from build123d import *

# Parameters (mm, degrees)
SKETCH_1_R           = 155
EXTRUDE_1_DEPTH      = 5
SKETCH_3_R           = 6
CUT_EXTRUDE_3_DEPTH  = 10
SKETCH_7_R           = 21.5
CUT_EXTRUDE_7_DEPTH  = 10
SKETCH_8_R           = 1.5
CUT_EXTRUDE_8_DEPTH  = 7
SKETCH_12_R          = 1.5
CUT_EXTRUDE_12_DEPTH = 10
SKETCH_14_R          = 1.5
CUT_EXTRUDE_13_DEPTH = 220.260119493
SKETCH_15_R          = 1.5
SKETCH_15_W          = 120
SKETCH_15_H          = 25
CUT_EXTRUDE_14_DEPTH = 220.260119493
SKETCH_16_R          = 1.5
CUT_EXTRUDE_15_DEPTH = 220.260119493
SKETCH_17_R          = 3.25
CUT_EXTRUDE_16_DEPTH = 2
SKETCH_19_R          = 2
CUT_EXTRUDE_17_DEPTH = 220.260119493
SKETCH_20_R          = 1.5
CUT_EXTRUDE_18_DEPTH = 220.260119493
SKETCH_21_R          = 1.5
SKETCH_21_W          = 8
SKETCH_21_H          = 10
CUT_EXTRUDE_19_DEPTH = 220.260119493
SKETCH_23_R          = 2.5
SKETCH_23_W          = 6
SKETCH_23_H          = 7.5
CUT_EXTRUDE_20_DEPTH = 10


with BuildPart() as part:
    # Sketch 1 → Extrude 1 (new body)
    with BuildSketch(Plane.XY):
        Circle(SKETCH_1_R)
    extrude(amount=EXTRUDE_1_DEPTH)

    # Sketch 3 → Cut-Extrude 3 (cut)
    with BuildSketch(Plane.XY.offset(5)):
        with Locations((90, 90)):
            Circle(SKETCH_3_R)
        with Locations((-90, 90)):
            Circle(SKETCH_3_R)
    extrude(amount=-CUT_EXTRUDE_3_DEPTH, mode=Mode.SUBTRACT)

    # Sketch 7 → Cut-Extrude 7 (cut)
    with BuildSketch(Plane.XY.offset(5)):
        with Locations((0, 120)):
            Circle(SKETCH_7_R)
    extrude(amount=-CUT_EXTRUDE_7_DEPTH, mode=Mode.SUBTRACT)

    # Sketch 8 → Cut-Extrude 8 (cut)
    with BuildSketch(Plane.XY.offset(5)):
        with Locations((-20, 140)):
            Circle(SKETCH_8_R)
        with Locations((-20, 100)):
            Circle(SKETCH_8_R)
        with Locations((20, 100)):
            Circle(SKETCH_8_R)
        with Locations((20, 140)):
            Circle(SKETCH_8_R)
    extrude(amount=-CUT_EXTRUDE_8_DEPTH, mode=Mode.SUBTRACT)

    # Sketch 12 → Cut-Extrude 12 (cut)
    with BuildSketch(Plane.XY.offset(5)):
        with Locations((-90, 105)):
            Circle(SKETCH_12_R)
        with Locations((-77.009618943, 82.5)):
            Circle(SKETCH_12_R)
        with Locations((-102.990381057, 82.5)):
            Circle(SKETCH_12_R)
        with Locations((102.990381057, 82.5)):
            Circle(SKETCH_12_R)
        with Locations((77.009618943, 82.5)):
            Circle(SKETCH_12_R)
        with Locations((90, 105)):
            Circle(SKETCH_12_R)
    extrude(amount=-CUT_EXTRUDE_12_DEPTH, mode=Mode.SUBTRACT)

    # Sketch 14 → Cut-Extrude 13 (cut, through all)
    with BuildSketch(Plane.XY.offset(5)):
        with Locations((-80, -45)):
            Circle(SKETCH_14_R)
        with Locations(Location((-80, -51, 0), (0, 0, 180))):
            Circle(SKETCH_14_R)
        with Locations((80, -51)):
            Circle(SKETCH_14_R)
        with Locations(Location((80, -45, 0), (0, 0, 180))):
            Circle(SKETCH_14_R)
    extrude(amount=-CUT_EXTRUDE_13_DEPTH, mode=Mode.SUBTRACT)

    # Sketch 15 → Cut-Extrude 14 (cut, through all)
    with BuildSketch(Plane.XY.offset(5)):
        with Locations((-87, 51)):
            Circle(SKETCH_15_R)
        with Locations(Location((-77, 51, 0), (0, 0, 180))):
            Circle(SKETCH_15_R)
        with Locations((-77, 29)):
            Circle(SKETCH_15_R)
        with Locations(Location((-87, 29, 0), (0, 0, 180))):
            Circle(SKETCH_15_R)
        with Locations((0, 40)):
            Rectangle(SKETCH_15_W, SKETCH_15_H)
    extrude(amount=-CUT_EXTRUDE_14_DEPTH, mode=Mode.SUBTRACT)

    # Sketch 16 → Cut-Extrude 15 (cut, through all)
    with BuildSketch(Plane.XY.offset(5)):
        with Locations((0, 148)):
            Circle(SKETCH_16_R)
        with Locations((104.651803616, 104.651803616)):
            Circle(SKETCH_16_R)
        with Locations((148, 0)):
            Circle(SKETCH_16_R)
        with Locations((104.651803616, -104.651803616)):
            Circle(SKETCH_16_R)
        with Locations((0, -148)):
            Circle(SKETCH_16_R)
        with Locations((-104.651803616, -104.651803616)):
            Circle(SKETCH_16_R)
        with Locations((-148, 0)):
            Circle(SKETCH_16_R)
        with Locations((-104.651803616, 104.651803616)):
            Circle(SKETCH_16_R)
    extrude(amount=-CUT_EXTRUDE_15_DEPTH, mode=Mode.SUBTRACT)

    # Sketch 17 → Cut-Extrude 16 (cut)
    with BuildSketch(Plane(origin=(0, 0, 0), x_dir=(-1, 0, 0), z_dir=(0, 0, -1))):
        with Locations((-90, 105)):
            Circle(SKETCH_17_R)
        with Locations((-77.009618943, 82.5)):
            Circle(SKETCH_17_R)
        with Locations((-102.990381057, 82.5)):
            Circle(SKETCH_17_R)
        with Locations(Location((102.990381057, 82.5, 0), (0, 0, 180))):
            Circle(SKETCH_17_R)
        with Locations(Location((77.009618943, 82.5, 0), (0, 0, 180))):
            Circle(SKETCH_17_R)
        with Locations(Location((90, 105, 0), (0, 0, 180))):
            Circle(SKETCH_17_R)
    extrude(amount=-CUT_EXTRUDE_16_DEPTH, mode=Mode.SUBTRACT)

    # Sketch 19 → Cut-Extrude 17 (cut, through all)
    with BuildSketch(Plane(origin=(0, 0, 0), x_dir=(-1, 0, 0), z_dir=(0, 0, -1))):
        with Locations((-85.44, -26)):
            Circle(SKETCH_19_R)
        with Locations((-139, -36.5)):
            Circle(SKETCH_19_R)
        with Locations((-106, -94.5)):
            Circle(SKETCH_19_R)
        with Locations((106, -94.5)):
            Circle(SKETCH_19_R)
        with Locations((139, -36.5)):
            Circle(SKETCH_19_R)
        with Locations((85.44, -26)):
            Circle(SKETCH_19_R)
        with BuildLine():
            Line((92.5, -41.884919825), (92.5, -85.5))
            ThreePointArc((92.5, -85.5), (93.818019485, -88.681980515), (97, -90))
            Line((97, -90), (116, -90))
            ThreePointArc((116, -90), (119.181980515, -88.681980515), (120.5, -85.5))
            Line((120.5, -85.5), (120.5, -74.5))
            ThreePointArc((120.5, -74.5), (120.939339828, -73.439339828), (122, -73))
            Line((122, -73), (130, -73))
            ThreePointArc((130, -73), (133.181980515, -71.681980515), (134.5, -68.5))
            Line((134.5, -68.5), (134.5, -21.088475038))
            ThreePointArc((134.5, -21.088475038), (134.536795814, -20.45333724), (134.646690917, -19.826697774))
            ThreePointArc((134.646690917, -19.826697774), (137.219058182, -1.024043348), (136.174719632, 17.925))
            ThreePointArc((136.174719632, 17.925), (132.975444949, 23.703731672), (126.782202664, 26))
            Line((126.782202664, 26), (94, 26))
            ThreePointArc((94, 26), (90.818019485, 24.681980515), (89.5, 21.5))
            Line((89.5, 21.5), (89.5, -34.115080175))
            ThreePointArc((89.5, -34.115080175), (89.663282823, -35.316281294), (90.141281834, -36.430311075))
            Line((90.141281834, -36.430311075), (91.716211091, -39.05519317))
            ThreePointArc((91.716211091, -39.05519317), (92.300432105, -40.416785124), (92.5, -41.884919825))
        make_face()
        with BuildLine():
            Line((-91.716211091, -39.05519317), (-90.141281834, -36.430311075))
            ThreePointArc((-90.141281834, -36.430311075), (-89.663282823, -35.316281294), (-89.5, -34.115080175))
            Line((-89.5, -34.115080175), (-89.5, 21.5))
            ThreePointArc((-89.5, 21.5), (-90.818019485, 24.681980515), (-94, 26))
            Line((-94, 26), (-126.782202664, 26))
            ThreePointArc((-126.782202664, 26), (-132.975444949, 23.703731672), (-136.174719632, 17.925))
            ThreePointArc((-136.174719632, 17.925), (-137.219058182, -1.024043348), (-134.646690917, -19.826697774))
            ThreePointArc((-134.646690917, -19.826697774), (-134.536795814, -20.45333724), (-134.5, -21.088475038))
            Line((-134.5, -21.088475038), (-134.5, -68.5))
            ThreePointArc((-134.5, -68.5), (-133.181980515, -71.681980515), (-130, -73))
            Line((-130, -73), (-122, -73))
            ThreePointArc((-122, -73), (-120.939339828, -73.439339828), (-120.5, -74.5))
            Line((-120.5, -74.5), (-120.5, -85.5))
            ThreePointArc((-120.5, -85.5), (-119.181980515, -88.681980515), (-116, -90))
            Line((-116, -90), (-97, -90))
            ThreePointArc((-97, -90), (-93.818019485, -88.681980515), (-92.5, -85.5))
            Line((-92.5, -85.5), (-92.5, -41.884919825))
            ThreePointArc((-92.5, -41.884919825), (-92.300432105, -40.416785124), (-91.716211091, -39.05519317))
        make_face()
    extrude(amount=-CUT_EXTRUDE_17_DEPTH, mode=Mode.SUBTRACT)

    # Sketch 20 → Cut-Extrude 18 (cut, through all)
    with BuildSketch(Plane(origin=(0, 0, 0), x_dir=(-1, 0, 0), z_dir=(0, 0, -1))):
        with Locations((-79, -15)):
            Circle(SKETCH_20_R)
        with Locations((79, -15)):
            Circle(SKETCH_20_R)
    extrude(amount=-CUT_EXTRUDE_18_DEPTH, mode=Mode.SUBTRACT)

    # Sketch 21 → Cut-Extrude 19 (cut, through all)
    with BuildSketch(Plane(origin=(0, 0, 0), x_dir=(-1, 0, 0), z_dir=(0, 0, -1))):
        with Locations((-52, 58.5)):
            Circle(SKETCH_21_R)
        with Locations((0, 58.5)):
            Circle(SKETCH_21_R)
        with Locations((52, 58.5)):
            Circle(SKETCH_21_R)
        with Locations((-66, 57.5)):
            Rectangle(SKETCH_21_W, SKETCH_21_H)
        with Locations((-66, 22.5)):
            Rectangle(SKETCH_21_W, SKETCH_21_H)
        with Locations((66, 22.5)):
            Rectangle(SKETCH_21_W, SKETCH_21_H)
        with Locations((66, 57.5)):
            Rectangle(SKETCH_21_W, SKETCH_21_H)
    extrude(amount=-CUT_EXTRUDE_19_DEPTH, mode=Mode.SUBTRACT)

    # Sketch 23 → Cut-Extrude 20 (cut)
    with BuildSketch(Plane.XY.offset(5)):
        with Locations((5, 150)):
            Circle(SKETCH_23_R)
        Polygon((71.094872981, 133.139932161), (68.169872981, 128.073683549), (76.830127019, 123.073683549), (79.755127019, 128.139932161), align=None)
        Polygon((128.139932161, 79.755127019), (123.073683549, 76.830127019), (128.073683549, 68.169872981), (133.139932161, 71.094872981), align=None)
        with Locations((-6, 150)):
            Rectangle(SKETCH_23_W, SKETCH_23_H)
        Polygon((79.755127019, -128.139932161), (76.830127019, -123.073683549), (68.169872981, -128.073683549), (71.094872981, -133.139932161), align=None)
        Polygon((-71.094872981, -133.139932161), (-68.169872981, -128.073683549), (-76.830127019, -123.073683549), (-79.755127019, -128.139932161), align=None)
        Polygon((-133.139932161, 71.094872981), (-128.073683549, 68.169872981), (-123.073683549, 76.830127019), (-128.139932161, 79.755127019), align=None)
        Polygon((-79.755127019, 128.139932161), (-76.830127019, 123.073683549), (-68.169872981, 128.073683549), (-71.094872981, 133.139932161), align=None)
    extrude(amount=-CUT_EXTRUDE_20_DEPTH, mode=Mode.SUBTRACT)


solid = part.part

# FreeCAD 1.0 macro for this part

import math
import FreeCAD as App
import Part
import Sketcher

V = App.Vector
Q = App.Units.Quantity

doc = App.newDocument("Part")
body = doc.addObject("PartDesign::Body", "Body")

# Sketch on XY plane
sketch1 = doc.addObject("Sketcher::SketchObject", "Sketch")
body.addObject(sketch1)
sketch1.AttachmentSupport = (doc.XY_Plane, [""])
sketch1.MapMode = "FlatFace"
sketch1.addGeometry(Part.Circle(V(0, 0, 0), V(0, 0, 1), 155), False)
sketch1.addConstraint([
    Sketcher.Constraint("Coincident", 0, 3, -1, 1),
    Sketcher.Constraint("Diameter", 0, 310.0),
])
pad1 = doc.addObject("PartDesign::Pad", "Pad")
body.addObject(pad1)
pad1.Profile = sketch1
pad1.Length = 5

# Sketch on XY plane
sketch2 = doc.addObject("Sketcher::SketchObject", "Sketch001")
body.addObject(sketch2)
sketch2.AttachmentSupport = (doc.XY_Plane, [""])
sketch2.MapMode = "FlatFace"
sketch2.AttachmentOffset = App.Placement(V(0, 0, 5), App.Rotation())
sketch2.addGeometry([
    Part.Circle(V(90, 90, 0), V(0, 0, 1), 6),
    Part.Circle(V(-90, 90, 0), V(0, 0, 1), 6),
], False)
sketch2.addConstraint([
    Sketcher.Constraint("Equal", 0, 1),
    Sketcher.Constraint("Symmetric", 0, 3, 1, 3, -2),
    Sketcher.Constraint("Diameter", 0, 12.0),
    Sketcher.Constraint("DistanceX", -1, 1, 0, 3, 90.0),
    Sketcher.Constraint("DistanceY", -1, 1, 0, 3, 90.0),
])
pocket1 = doc.addObject("PartDesign::Pocket", "Pocket")
body.addObject(pocket1)
pocket1.Profile = sketch2
pocket1.Length = 10

# Sketch on XY plane
sketch3 = doc.addObject("Sketcher::SketchObject", "Sketch002")
body.addObject(sketch3)
sketch3.AttachmentSupport = (doc.XY_Plane, [""])
sketch3.MapMode = "FlatFace"
sketch3.AttachmentOffset = App.Placement(V(0, 0, 5), App.Rotation())
sketch3.addGeometry(Part.Circle(V(0, 120, 0), V(0, 0, 1), 22), False)
sketch3.addConstraint([
    Sketcher.Constraint("PointOnObject", 0, 3, -2),
    Sketcher.Constraint("Diameter", 0, 43.0),
    Sketcher.Constraint("DistanceY", -1, 1, 0, 3, 120.0),
])
pocket2 = doc.addObject("PartDesign::Pocket", "Pocket001")
body.addObject(pocket2)
pocket2.Profile = sketch3
pocket2.Length = 10

# Sketch on XY plane
sketch4 = doc.addObject("Sketcher::SketchObject", "Sketch003")
body.addObject(sketch4)
sketch4.AttachmentSupport = (doc.XY_Plane, [""])
sketch4.MapMode = "FlatFace"
sketch4.AttachmentOffset = App.Placement(V(0, 0, 5), App.Rotation())
sketch4.addGeometry([
    Part.Circle(V(-20, 140, 0), V(0, 0, 1), 1.5),
    Part.Circle(V(-20, 100, 0), V(0, 0, 1), 1.5),
    Part.Circle(V(20, 100, 0), V(0, 0, 1), 1.5),
    Part.Circle(V(20, 140, 0), V(0, 0, 1), 1.5),
], False)
sketch4.addConstraint([
    Sketcher.Constraint("Equal", 0, 1),
    Sketcher.Constraint("Equal", 1, 2),
    Sketcher.Constraint("Equal", 2, 3),
    Sketcher.Constraint("Symmetric", 1, 3, 2, 3, -2),
    Sketcher.Constraint("Symmetric", 0, 3, 3, 3, -2),
    Sketcher.Constraint("Vertical", 0, 3, 1, 3),
    Sketcher.Constraint("Diameter", 0, 3.0),
    Sketcher.Constraint("DistanceX", 0, 3, -1, 1, 20.0),
    Sketcher.Constraint("DistanceY", -1, 1, 0, 3, 140.0),
    Sketcher.Constraint("DistanceY", -1, 1, 1, 3, 100.0),
])
pocket3 = doc.addObject("PartDesign::Pocket", "Pocket002")
body.addObject(pocket3)
pocket3.Profile = sketch4
pocket3.Length = 7

# Sketch on XY plane
sketch5 = doc.addObject("Sketcher::SketchObject", "Sketch004")
body.addObject(sketch5)
sketch5.AttachmentSupport = (doc.XY_Plane, [""])
sketch5.MapMode = "FlatFace"
sketch5.AttachmentOffset = App.Placement(V(0, 0, 5), App.Rotation())
sketch5.addGeometry([
    Part.Circle(V(-90, 105, 0), V(0, 0, 1), 1.5),  # 0
    Part.Circle(V(-77, 82.5, 0), V(0, 0, 1), 1.5),  # 1
    Part.Circle(V(-103, 82.5, 0), V(0, 0, 1), 1.5),  # 2
    Part.Circle(V(103, 82.5, 0), V(0, 0, 1), 1.5),  # 3
    Part.Circle(V(77, 82.5, 0), V(0, 0, 1), 1.5),  # 4
    Part.Circle(V(90, 105, 0), V(0, 0, 1), 1.5),  # 5
], False)
sketch5.addConstraint([
    Sketcher.Constraint("Equal", 0, 1),
    Sketcher.Constraint("Equal", 1, 2),
    Sketcher.Constraint("Equal", 2, 3),
    Sketcher.Constraint("Equal", 3, 4),
    Sketcher.Constraint("Equal", 4, 5),
    Sketcher.Constraint("Symmetric", 2, 3, 3, 3, -2),
    Sketcher.Constraint("Symmetric", 1, 3, 4, 3, -2),
    Sketcher.Constraint("Symmetric", 0, 3, 5, 3, -2),
    Sketcher.Constraint("Horizontal", 1, 3, 2, 3),
    Sketcher.Constraint("Diameter", 0, 3.0),
    Sketcher.Constraint("DistanceX", 0, 3, -1, 1, 90.0),
    Sketcher.Constraint("DistanceY", -1, 1, 0, 3, 105.0),
    Sketcher.Constraint("DistanceX", 1, 3, 3, 3, 180.0),
    Sketcher.Constraint("DistanceY", -1, 1, 1, 3, 82.5),
    Sketcher.Constraint("DistanceX", 1, 3, -1, 1, 77.009619),
])
pocket4 = doc.addObject("PartDesign::Pocket", "Pocket003")
body.addObject(pocket4)
pocket4.Profile = sketch5
pocket4.Length = 10

# Sketch on XY plane
sketch6 = doc.addObject("Sketcher::SketchObject", "Sketch005")
body.addObject(sketch6)
sketch6.AttachmentSupport = (doc.XY_Plane, [""])
sketch6.MapMode = "FlatFace"
sketch6.AttachmentOffset = App.Placement(V(0, 0, 5), App.Rotation())
sketch6.addGeometry([
    Part.Circle(V(-80, -45, 0), V(0, 0, 1), 1.5),
    Part.Circle(V(-80, -51, 0), V(0, 0, 1), 1.5),
    Part.Circle(V(80, -51, 0), V(0, 0, 1), 1.5),
    Part.Circle(V(80, -45, 0), V(0, 0, 1), 1.5),
], False)
sketch6.addConstraint([
    Sketcher.Constraint("Equal", 0, 1),
    Sketcher.Constraint("Equal", 1, 2),
    Sketcher.Constraint("Equal", 2, 3),
    Sketcher.Constraint("Symmetric", 1, 3, 2, 3, -2),
    Sketcher.Constraint("Symmetric", 0, 3, 3, 3, -2),
    Sketcher.Constraint("Vertical", 0, 3, 1, 3),
    Sketcher.Constraint("Diameter", 0, 3.0),
    Sketcher.Constraint("DistanceX", 0, 3, -1, 1, 80.0),
    Sketcher.Constraint("DistanceY", 0, 3, -1, 1, 45.0),
    Sketcher.Constraint("DistanceY", 1, 3, -1, 1, 51.0),
])
pocket5 = doc.addObject("PartDesign::Pocket", "Pocket004")
body.addObject(pocket5)
pocket5.Profile = sketch6
pocket5.Type = "ThroughAll"

# Sketch on XY plane
sketch7 = doc.addObject("Sketcher::SketchObject", "Sketch006")
body.addObject(sketch7)
sketch7.AttachmentSupport = (doc.XY_Plane, [""])
sketch7.MapMode = "FlatFace"
sketch7.AttachmentOffset = App.Placement(V(0, 0, 5), App.Rotation())
sketch7.addGeometry([
    Part.Circle(V(-87, 51, 0), V(0, 0, 1), 1.5),  # 0
    Part.Circle(V(-77, 51, 0), V(0, 0, 1), 1.5),  # 1
    Part.Circle(V(-77, 29, 0), V(0, 0, 1), 1.5),  # 2
    Part.Circle(V(-87, 29, 0), V(0, 0, 1), 1.5),  # 3
    Part.LineSegment(V(-60, 52.5, 0), V(-60, 27.5, 0)),  # 4
    Part.LineSegment(V(-60, 27.5, 0), V(60, 27.5, 0)),  # 5
    Part.LineSegment(V(60, 27.5, 0), V(60, 52.5, 0)),  # 6
    Part.LineSegment(V(60, 52.5, 0), V(-60, 52.5, 0)),  # 7
], False)
sketch7.addConstraint([
    Sketcher.Constraint("Coincident", 4, 2, 5, 1),
    Sketcher.Constraint("Coincident", 5, 2, 6, 1),
    Sketcher.Constraint("Coincident", 6, 2, 7, 1),
    Sketcher.Constraint("Coincident", 7, 2, 4, 1),
    Sketcher.Constraint("Vertical", 4),
    Sketcher.Constraint("Horizontal", 5),
    Sketcher.Constraint("Vertical", 6),
    Sketcher.Constraint("Horizontal", 7),
    Sketcher.Constraint("Equal", 0, 1),
    Sketcher.Constraint("Equal", 1, 2),
    Sketcher.Constraint("Equal", 2, 3),
    Sketcher.Constraint("Horizontal", 0, 3, 1, 3),
    Sketcher.Constraint("Horizontal", 2, 3, 3, 3),
    Sketcher.Constraint("Vertical", 1, 3, 2, 3),
    Sketcher.Constraint("Vertical", 0, 3, 3, 3),
    Sketcher.Constraint("Diameter", 0, 3.0),
    Sketcher.Constraint("DistanceX", 5, 1, 5, 2, 120.0),
    Sketcher.Constraint("DistanceY", 4, 2, 4, 1, 25.0),
    Sketcher.Constraint("DistanceX", 0, 3, -1, 1, 87.0),
    Sketcher.Constraint("DistanceY", -1, 1, 0, 3, 51.0),
    Sketcher.Constraint("DistanceX", 1, 3, -1, 1, 77.0),
    Sketcher.Constraint("DistanceY", -1, 1, 2, 3, 29.0),
    Sketcher.Constraint("DistanceX", 4, 2, -1, 1, 60.0),
    Sketcher.Constraint("DistanceY", -1, 1, 4, 2, 27.5),
])
pocket6 = doc.addObject("PartDesign::Pocket", "Pocket005")
body.addObject(pocket6)
pocket6.Profile = sketch7
pocket6.Type = "ThroughAll"

# Sketch on XY plane
sketch8 = doc.addObject("Sketcher::SketchObject", "Sketch007")
body.addObject(sketch8)
sketch8.AttachmentSupport = (doc.XY_Plane, [""])
sketch8.MapMode = "FlatFace"
sketch8.AttachmentOffset = App.Placement(V(0, 0, 5), App.Rotation())
sketch8.addGeometry([
    Part.Circle(V(0, 148, 0), V(0, 0, 1), 1.5),  # 0
    Part.Circle(V(104.7, 104.7, 0), V(0, 0, 1), 1.5),  # 1
    Part.Circle(V(148, 0, 0), V(0, 0, 1), 1.5),  # 2
    Part.Circle(V(104.7, -104.7, 0), V(0, 0, 1), 1.5),  # 3
    Part.Circle(V(0, -148, 0), V(0, 0, 1), 1.5),  # 4
    Part.Circle(V(-104.7, -104.7, 0), V(0, 0, 1), 1.5),  # 5
    Part.Circle(V(-148, 0, 0), V(0, 0, 1), 1.5),  # 6
    Part.Circle(V(-104.7, 104.7, 0), V(0, 0, 1), 1.5),  # 7
], False)
sketch8.addConstraint([
    Sketcher.Constraint("Equal", 0, 1),
    Sketcher.Constraint("Equal", 1, 2),
    Sketcher.Constraint("Equal", 2, 3),
    Sketcher.Constraint("Equal", 3, 4),
    Sketcher.Constraint("Equal", 4, 5),
    Sketcher.Constraint("Equal", 5, 6),
    Sketcher.Constraint("Equal", 6, 7),
    Sketcher.Constraint("Symmetric", 0, 3, 4, 3, -1, 1),
    Sketcher.Constraint("Symmetric", 1, 3, 5, 3, -1, 1),
    Sketcher.Constraint("Symmetric", 2, 3, 6, 3, -1, 1),
    Sketcher.Constraint("Symmetric", 3, 3, 7, 3, -1, 1),
    Sketcher.Constraint("Symmetric", 3, 3, 5, 3, -2),
    Sketcher.Constraint("PointOnObject", 0, 3, -2),
    Sketcher.Constraint("PointOnObject", 2, 3, -1),
    Sketcher.Constraint("Diameter", 0, 3.0),
    Sketcher.Constraint("DistanceY", -1, 1, 0, 3, 148.0),
    Sketcher.Constraint("DistanceX", -1, 1, 2, 3, 148.0),
    Sketcher.Constraint("DistanceX", -1, 1, 1, 3, 104.651804),
    Sketcher.Constraint("DistanceY", -1, 1, 1, 3, 104.651804),
])
pocket7 = doc.addObject("PartDesign::Pocket", "Pocket006")
body.addObject(pocket7)
pocket7.Profile = sketch8
pocket7.Type = "ThroughAll"

# Sketch on XY plane
sketch9 = doc.addObject("Sketcher::SketchObject", "Sketch008")
body.addObject(sketch9)
sketch9.AttachmentSupport = (doc.XY_Plane, [""])
sketch9.MapMode = "FlatFace"
sketch9.addGeometry([
    Part.Circle(V(90, 105, 0), V(0, 0, 1), 3.2),  # 0
    Part.Circle(V(77, 82.5, 0), V(0, 0, 1), 3.2),  # 1
    Part.Circle(V(103, 82.5, 0), V(0, 0, 1), 3.2),  # 2
    Part.Circle(V(-103, 82.5, 0), V(0, 0, 1), 3.2),  # 3
    Part.Circle(V(-77, 82.5, 0), V(0, 0, 1), 3.2),  # 4
    Part.Circle(V(-90, 105, 0), V(0, 0, 1), 3.2),  # 5
], False)
sketch9.addConstraint([
    Sketcher.Constraint("Equal", 0, 1),
    Sketcher.Constraint("Equal", 1, 2),
    Sketcher.Constraint("Equal", 2, 3),
    Sketcher.Constraint("Equal", 3, 4),
    Sketcher.Constraint("Equal", 4, 5),
    Sketcher.Constraint("Symmetric", 2, 3, 3, 3, -2),
    Sketcher.Constraint("Symmetric", 1, 3, 4, 3, -2),
    Sketcher.Constraint("Symmetric", 0, 3, 5, 3, -2),
    Sketcher.Constraint("Horizontal", 1, 3, 2, 3),
    Sketcher.Constraint("Diameter", 0, 6.5),
    Sketcher.Constraint("DistanceX", -1, 1, 0, 3, 90.0),
    Sketcher.Constraint("DistanceY", -1, 1, 0, 3, 105.0),
    Sketcher.Constraint("DistanceX", 3, 3, 1, 3, 180.0),
    Sketcher.Constraint("DistanceY", -1, 1, 1, 3, 82.5),
    Sketcher.Constraint("DistanceX", -1, 1, 1, 3, 77.009619),
])
pocket8 = doc.addObject("PartDesign::Pocket", "Pocket007")
body.addObject(pocket8)
pocket8.Profile = sketch9
pocket8.Length = 2
pocket8.Reversed = True

# Sketch on XY plane
sketch10 = doc.addObject("Sketcher::SketchObject", "Sketch009")
body.addObject(sketch10)
sketch10.AttachmentSupport = (doc.XY_Plane, [""])
sketch10.MapMode = "FlatFace"
sketch10.addGeometry([
    Part.Circle(V(85.4, -26, 0), V(0, 0, 1), 2),  # 0
    Part.Circle(V(139, -36.5, 0), V(0, 0, 1), 2),  # 1
    Part.Circle(V(106, -94.5, 0), V(0, 0, 1), 2),  # 2
    Part.Circle(V(-106, -94.5, 0), V(0, 0, 1), 2),  # 3
    Part.Circle(V(-139, -36.5, 0), V(0, 0, 1), 2),  # 4
    Part.Circle(V(-85.4, -26, 0), V(0, 0, 1), 2),  # 5
    Part.LineSegment(V(-92.5, -41.9, 0), V(-92.5, -85.5, 0)),  # 6
    Part.ArcOfCircle(Part.Circle(V(-97, -85.5, 0), V(0, 0, 1), 4.5), math.radians(-90), math.radians(0)),  # 7
    Part.LineSegment(V(-97, -90, 0), V(-116, -90, 0)),  # 8
    Part.ArcOfCircle(Part.Circle(V(-116, -85.5, 0), V(0, 0, 1), 4.5), math.radians(-180), math.radians(-90)),  # 9
    Part.LineSegment(V(-120.5, -85.5, 0), V(-120.5, -74.5, 0)),  # 10
    Part.ArcOfCircle(Part.Circle(V(-122, -74.5, 0), V(0, 0, 1), 1.5), math.radians(0), math.radians(90)),  # 11
    Part.LineSegment(V(-122, -73, 0), V(-130, -73, 0)),  # 12
    Part.ArcOfCircle(Part.Circle(V(-130, -68.5, 0), V(0, 0, 1), 4.5), math.radians(-180), math.radians(-90)),  # 13
    Part.LineSegment(V(-134.5, -68.5, 0), V(-134.5, -21.1, 0)),  # 14
    Part.ArcOfCircle(Part.Circle(V(-140, -21.1, 0), V(0, 0, 1), 5.5), math.radians(0), math.radians(13.26)),  # 15
    Part.ArcOfCircle(Part.Circle(V(-37.8, 3, 0), V(0, 0, 1), 99.5), math.radians(171), math.radians(193)),  # 16
    Part.ArcOfCircle(Part.Circle(V(-126.8, 16.5, 0), V(0, 0, 1), 9.5), math.radians(90), math.radians(171)),  # 17
    Part.LineSegment(V(-126.8, 26, 0), V(-94, 26, 0)),  # 18
    Part.ArcOfCircle(Part.Circle(V(-94, 21.5, 0), V(0, 0, 1), 4.5), math.radians(0), math.radians(90)),  # 19
    Part.LineSegment(V(-89.5, 21.5, 0), V(-89.5, -34.1, 0)),  # 20
    Part.ArcOfCircle(Part.Circle(V(-94, -34.1, 0), V(0, 0, 1), 4.5), math.radians(-31), math.radians(0)),  # 21
    Part.LineSegment(V(-90.1, -36.4, 0), V(-91.7, -39.1, 0)),  # 22
    Part.ArcOfCircle(Part.Circle(V(-87, -41.9, 0), V(0, 0, 1), 5.5), math.radians(149), math.radians(180)),  # 23
    Part.LineSegment(V(91.7, -39.1, 0), V(90.1, -36.4, 0)),  # 24
    Part.ArcOfCircle(Part.Circle(V(94, -34.1, 0), V(0, 0, 1), 4.5), math.radians(180), math.radians(211)),  # 25
    Part.LineSegment(V(89.5, -34.1, 0), V(89.5, 21.5, 0)),  # 26
    Part.ArcOfCircle(Part.Circle(V(94, 21.5, 0), V(0, 0, 1), 4.5), math.radians(90), math.radians(180)),  # 27
    Part.LineSegment(V(94, 26, 0), V(126.8, 26, 0)),  # 28
    Part.ArcOfCircle(Part.Circle(V(126.8, 16.5, 0), V(0, 0, 1), 9.5), math.radians(9), math.radians(90)),  # 29
    Part.ArcOfCircle(Part.Circle(V(37.8, 3, 0), V(0, 0, 1), 99.5), math.radians(-13), math.radians(9)),  # 30
    Part.ArcOfCircle(Part.Circle(V(140, -21.1, 0), V(0, 0, 1), 5.5), math.radians(166.74), math.radians(180)),  # 31
    Part.LineSegment(V(134.5, -21.1, 0), V(134.5, -68.5, 0)),  # 32
    Part.ArcOfCircle(Part.Circle(V(130, -68.5, 0), V(0, 0, 1), 4.5), math.radians(-90), math.radians(0)),  # 33
    Part.LineSegment(V(130, -73, 0), V(122, -73, 0)),  # 34
    Part.ArcOfCircle(Part.Circle(V(122, -74.5, 0), V(0, 0, 1), 1.5), math.radians(90), math.radians(180)),  # 35
    Part.LineSegment(V(120.5, -74.5, 0), V(120.5, -85.5, 0)),  # 36
    Part.ArcOfCircle(Part.Circle(V(116, -85.5, 0), V(0, 0, 1), 4.5), math.radians(-90), math.radians(0)),  # 37
    Part.LineSegment(V(116, -90, 0), V(97, -90, 0)),  # 38
    Part.ArcOfCircle(Part.Circle(V(97, -85.5, 0), V(0, 0, 1), 4.5), math.radians(-180), math.radians(-90)),  # 39
    Part.LineSegment(V(92.5, -85.5, 0), V(92.5, -41.9, 0)),  # 40
    Part.ArcOfCircle(Part.Circle(V(87, -41.9, 0), V(0, 0, 1), 5.5), math.radians(0), math.radians(31)),  # 41
], False)
sketch10.addConstraint([
    Sketcher.Constraint("Tangent", 6, 2, 7, 2),
    Sketcher.Constraint("Tangent", 7, 1, 8, 1),
    Sketcher.Constraint("Tangent", 8, 2, 9, 2),
    Sketcher.Constraint("Tangent", 9, 1, 10, 1),
    Sketcher.Constraint("Tangent", 10, 2, 11, 1),
    Sketcher.Constraint("Tangent", 11, 2, 12, 1),
    Sketcher.Constraint("Tangent", 12, 2, 13, 2),
    Sketcher.Constraint("Tangent", 13, 1, 14, 1),
    Sketcher.Constraint("Tangent", 14, 2, 15, 1),
    Sketcher.Constraint("Tangent", 15, 2, 16, 2),
    Sketcher.Constraint("Tangent", 16, 1, 17, 2),
    Sketcher.Constraint("Tangent", 17, 1, 18, 1),
    Sketcher.Constraint("Tangent", 18, 2, 19, 2),
    Sketcher.Constraint("Tangent", 19, 1, 20, 1),
    Sketcher.Constraint("Tangent", 20, 2, 21, 2),
    Sketcher.Constraint("Tangent", 21, 1, 22, 1),
    Sketcher.Constraint("Tangent", 22, 2, 23, 1),
    Sketcher.Constraint("Tangent", 23, 2, 6, 1),
    Sketcher.Constraint("Tangent", 24, 2, 25, 2),
    Sketcher.Constraint("Tangent", 25, 1, 26, 1),
    Sketcher.Constraint("Tangent", 26, 2, 27, 2),
    Sketcher.Constraint("Tangent", 27, 1, 28, 1),
    Sketcher.Constraint("Tangent", 28, 2, 29, 2),
    Sketcher.Constraint("Tangent", 29, 1, 30, 2),
    Sketcher.Constraint("Tangent", 30, 1, 31, 1),
    Sketcher.Constraint("Tangent", 31, 2, 32, 1),
    Sketcher.Constraint("Tangent", 32, 2, 33, 2),
    Sketcher.Constraint("Tangent", 33, 1, 34, 1),
    Sketcher.Constraint("Tangent", 34, 2, 35, 1),
    Sketcher.Constraint("Tangent", 35, 2, 36, 1),
    Sketcher.Constraint("Tangent", 36, 2, 37, 2),
    Sketcher.Constraint("Tangent", 37, 1, 38, 1),
    Sketcher.Constraint("Tangent", 38, 2, 39, 2),
    Sketcher.Constraint("Tangent", 39, 1, 40, 1),
    Sketcher.Constraint("Tangent", 40, 2, 41, 1),
    Sketcher.Constraint("Tangent", 41, 2, 24, 1),
    Sketcher.Constraint("Vertical", 6),
    Sketcher.Constraint("Horizontal", 8),
    Sketcher.Constraint("Vertical", 10),
    Sketcher.Constraint("Horizontal", 12),
    Sketcher.Constraint("Vertical", 14),
    Sketcher.Constraint("Horizontal", 18),
    Sketcher.Constraint("Vertical", 20),
    Sketcher.Constraint("Vertical", 26),
    Sketcher.Constraint("Horizontal", 28),
    Sketcher.Constraint("Vertical", 32),
    Sketcher.Constraint("Horizontal", 34),
    Sketcher.Constraint("Vertical", 36),
    Sketcher.Constraint("Horizontal", 38),
    Sketcher.Constraint("Vertical", 40),
    Sketcher.Constraint("Equal", 0, 1),
    Sketcher.Constraint("Equal", 1, 2),
    Sketcher.Constraint("Equal", 2, 3),
    Sketcher.Constraint("Equal", 3, 4),
    Sketcher.Constraint("Equal", 4, 5),
    Sketcher.Constraint("Equal", 7, 9),
    Sketcher.Constraint("Equal", 9, 13),
    Sketcher.Constraint("Equal", 13, 19),
    Sketcher.Constraint("Equal", 19, 21),
    Sketcher.Constraint("Equal", 15, 23),
    Sketcher.Constraint("Equal", 21, 25),
    Sketcher.Constraint("Equal", 25, 27),
    Sketcher.Constraint("Equal", 17, 29),
    Sketcher.Constraint("Equal", 16, 30),
    Sketcher.Constraint("Equal", 23, 31),
    Sketcher.Constraint("Equal", 27, 33),
    Sketcher.Constraint("Equal", 11, 35),
    Sketcher.Constraint("Equal", 33, 37),
    Sketcher.Constraint("Equal", 37, 39),
    Sketcher.Constraint("Equal", 31, 41),
    Sketcher.Constraint("Symmetric", 2, 3, 3, 3, -2),
    Sketcher.Constraint("Symmetric", 1, 3, 4, 3, -2),
    Sketcher.Constraint("Symmetric", 0, 3, 5, 3, -2),
    Sketcher.Constraint("Symmetric", 21, 3, 25, 3, -2),
    Sketcher.Constraint("Symmetric", 17, 3, 29, 3, -2),
    Sketcher.Constraint("Symmetric", 15, 3, 31, 3, -2),
    Sketcher.Constraint("Symmetric", 11, 3, 35, 3, -2),
    Sketcher.Constraint("Symmetric", 7, 3, 39, 3, -2),
    Sketcher.Constraint("Horizontal", 23, 3, 41, 3),
    Sketcher.Constraint("Diameter", 0, 4.0),
    Sketcher.Constraint("Radius", 7, 4.5),
    Sketcher.Constraint("Radius", 11, 1.5),
    Sketcher.Constraint("Radius", 15, 5.5),
    Sketcher.Constraint("Radius", 16, 99.5),
    Sketcher.Constraint("Radius", 17, 9.5),
    Sketcher.Constraint("DistanceX", 8, 2, 8, 1, 19.0),
    Sketcher.Constraint("DistanceX", 12, 2, 12, 1, 8.0),
    Sketcher.Constraint("DistanceY", 10, 1, 10, 2, 11.0),
    Sketcher.Constraint("DistanceY", 0, 3, -1, 1, 26.0),
    Sketcher.Constraint("DistanceX", -1, 1, 1, 3, 139.0),
    Sketcher.Constraint("DistanceX", -1, 1, 2, 3, 106.0),
    Sketcher.Constraint("DistanceX", 7, 3, -1, 1, 97.0),
    Sketcher.Constraint("DistanceY", -1, 1, 16, 3, 3.0),
    Sketcher.Constraint("DistanceX", 19, 3, -1, 1, 94.0),
    Sketcher.Constraint("DistanceY", 7, 1, -1, 1, 90.0),
    Sketcher.Constraint("DistanceY", -1, 1, 17, 1, 26.0),
    Sketcher.Constraint("DistanceY", 1, 3, -1, 1, 36.5),
    Sketcher.Constraint("DistanceY", 2, 3, -1, 1, 94.5),
    Sketcher.Constraint("DistanceX", -1, 1, 0, 3, 85.44),
    Sketcher.Constraint("DistanceY", 6, 2, 6, 1, 43.61508),
    Sketcher.Constraint("DistanceY", 20, 2, 20, 1, 55.61508),
    Sketcher.Constraint("DistanceX", 18, 1, 18, 2, 32.782203),
])
pocket9 = doc.addObject("PartDesign::Pocket", "Pocket008")
body.addObject(pocket9)
pocket9.Profile = sketch10
pocket9.Type = "ThroughAll"
pocket9.Reversed = True

# Sketch on XY plane
sketch11 = doc.addObject("Sketcher::SketchObject", "Sketch010")
body.addObject(sketch11)
sketch11.AttachmentSupport = (doc.XY_Plane, [""])
sketch11.MapMode = "FlatFace"
sketch11.addGeometry([
    Part.Circle(V(79, -15, 0), V(0, 0, 1), 1.5),
    Part.Circle(V(-79, -15, 0), V(0, 0, 1), 1.5),
], False)
sketch11.addConstraint([
    Sketcher.Constraint("Equal", 0, 1),
    Sketcher.Constraint("Symmetric", 0, 3, 1, 3, -2),
    Sketcher.Constraint("Diameter", 0, 3.0),
    Sketcher.Constraint("DistanceX", -1, 1, 0, 3, 79.0),
    Sketcher.Constraint("DistanceY", 0, 3, -1, 1, 15.0),
])
pocket10 = doc.addObject("PartDesign::Pocket", "Pocket009")
body.addObject(pocket10)
pocket10.Profile = sketch11
pocket10.Type = "ThroughAll"
pocket10.Reversed = True

# Sketch on XY plane
sketch12 = doc.addObject("Sketcher::SketchObject", "Sketch011")
body.addObject(sketch12)
sketch12.AttachmentSupport = (doc.XY_Plane, [""])
sketch12.MapMode = "FlatFace"
sketch12.addGeometry([
    Part.Circle(V(52, 58.5, 0), V(0, 0, 1), 1.5),  # 0
    Part.Circle(V(0, 58.5, 0), V(0, 0, 1), 1.5),  # 1
    Part.Circle(V(-52, 58.5, 0), V(0, 0, 1), 1.5),  # 2
    Part.LineSegment(V(70, 62.5, 0), V(70, 52.5, 0)),  # 3
    Part.LineSegment(V(70, 52.5, 0), V(62, 52.5, 0)),  # 4
    Part.LineSegment(V(62, 52.5, 0), V(62, 62.5, 0)),  # 5
    Part.LineSegment(V(62, 62.5, 0), V(70, 62.5, 0)),  # 6
    Part.LineSegment(V(70, 27.5, 0), V(70, 17.5, 0)),  # 7
    Part.LineSegment(V(70, 17.5, 0), V(62, 17.5, 0)),  # 8
    Part.LineSegment(V(62, 17.5, 0), V(62, 27.5, 0)),  # 9
    Part.LineSegment(V(62, 27.5, 0), V(70, 27.5, 0)),  # 10
    Part.LineSegment(V(-62, 27.5, 0), V(-62, 17.5, 0)),  # 11
    Part.LineSegment(V(-62, 17.5, 0), V(-70, 17.5, 0)),  # 12
    Part.LineSegment(V(-70, 17.5, 0), V(-70, 27.5, 0)),  # 13
    Part.LineSegment(V(-70, 27.5, 0), V(-62, 27.5, 0)),  # 14
    Part.LineSegment(V(-62, 62.5, 0), V(-62, 52.5, 0)),  # 15
    Part.LineSegment(V(-62, 52.5, 0), V(-70, 52.5, 0)),  # 16
    Part.LineSegment(V(-70, 52.5, 0), V(-70, 62.5, 0)),  # 17
    Part.LineSegment(V(-70, 62.5, 0), V(-62, 62.5, 0)),  # 18
], False)
sketch12.addConstraint([
    Sketcher.Constraint("Coincident", 3, 2, 4, 1),
    Sketcher.Constraint("Coincident", 4, 2, 5, 1),
    Sketcher.Constraint("Coincident", 5, 2, 6, 1),
    Sketcher.Constraint("Coincident", 6, 2, 3, 1),
    Sketcher.Constraint("Coincident", 7, 2, 8, 1),
    Sketcher.Constraint("Coincident", 8, 2, 9, 1),
    Sketcher.Constraint("Coincident", 9, 2, 10, 1),
    Sketcher.Constraint("Coincident", 10, 2, 7, 1),
    Sketcher.Constraint("Coincident", 11, 2, 12, 1),
    Sketcher.Constraint("Coincident", 12, 2, 13, 1),
    Sketcher.Constraint("Coincident", 13, 2, 14, 1),
    Sketcher.Constraint("Coincident", 14, 2, 11, 1),
    Sketcher.Constraint("Coincident", 15, 2, 16, 1),
    Sketcher.Constraint("Coincident", 16, 2, 17, 1),
    Sketcher.Constraint("Coincident", 17, 2, 18, 1),
    Sketcher.Constraint("Coincident", 18, 2, 15, 1),
    Sketcher.Constraint("Vertical", 3),
    Sketcher.Constraint("Horizontal", 4),
    Sketcher.Constraint("Vertical", 5),
    Sketcher.Constraint("Horizontal", 6),
    Sketcher.Constraint("Vertical", 7),
    Sketcher.Constraint("Horizontal", 8),
    Sketcher.Constraint("Vertical", 9),
    Sketcher.Constraint("Horizontal", 10),
    Sketcher.Constraint("Vertical", 11),
    Sketcher.Constraint("Horizontal", 12),
    Sketcher.Constraint("Vertical", 13),
    Sketcher.Constraint("Horizontal", 14),
    Sketcher.Constraint("Vertical", 15),
    Sketcher.Constraint("Horizontal", 16),
    Sketcher.Constraint("Vertical", 17),
    Sketcher.Constraint("Horizontal", 18),
    Sketcher.Constraint("Equal", 0, 1),
    Sketcher.Constraint("Equal", 1, 2),
    Sketcher.Constraint("Symmetric", 0, 3, 2, 3, -2),
    Sketcher.Constraint("Symmetric", 8, 2, 11, 2, -2),
    Sketcher.Constraint("Symmetric", 10, 2, 13, 2, -2),
    Sketcher.Constraint("Symmetric", 4, 2, 15, 2, -2),
    Sketcher.Constraint("Symmetric", 6, 2, 17, 2, -2),
    Sketcher.Constraint("PointOnObject", 1, 3, -2),
    Sketcher.Constraint("Horizontal", 0, 3, 1, 3),
    Sketcher.Constraint("Vertical", 6, 2, 7, 2),
    Sketcher.Constraint("Vertical", 5, 2, 8, 2),
    Sketcher.Constraint("Equal", 5, 7),
    Sketcher.Constraint("Diameter", 0, 3.0),
    Sketcher.Constraint("DistanceX", 4, 2, 4, 1, 8.0),
    Sketcher.Constraint("DistanceY", 3, 2, 3, 1, 10.0),
    Sketcher.Constraint("DistanceX", -1, 1, 0, 3, 52.0),
    Sketcher.Constraint("DistanceX", -1, 1, 3, 2, 70.0),
    Sketcher.Constraint("DistanceY", 3, 2, 0, 3, 6.0),
    Sketcher.Constraint("DistanceY", 7, 2, 3, 2, 35.0),
    Sketcher.Constraint("DistanceY", -1, 1, 0, 3, 58.5),
])
pocket11 = doc.addObject("PartDesign::Pocket", "Pocket010")
body.addObject(pocket11)
pocket11.Profile = sketch12
pocket11.Type = "ThroughAll"
pocket11.Reversed = True

# Sketch on XY plane
sketch13 = doc.addObject("Sketcher::SketchObject", "Sketch012")
body.addObject(sketch13)
sketch13.AttachmentSupport = (doc.XY_Plane, [""])
sketch13.MapMode = "FlatFace"
sketch13.AttachmentOffset = App.Placement(V(0, 0, 5), App.Rotation())
sketch13.addGeometry([
    Part.Circle(V(5, 150, 0), V(0, 0, 1), 2.5),  # 0
    Part.LineSegment(V(71.1, 133.1, 0), V(68.2, 128.1, 0)),  # 1
    Part.LineSegment(V(68.2, 128.1, 0), V(76.8, 123.1, 0)),  # 2
    Part.LineSegment(V(76.8, 123.1, 0), V(79.8, 128.1, 0)),  # 3
    Part.LineSegment(V(79.8, 128.1, 0), V(71.1, 133.1, 0)),  # 4
    Part.LineSegment(V(128.1, 79.8, 0), V(123.1, 76.8, 0)),  # 5
    Part.LineSegment(V(123.1, 76.8, 0), V(128.1, 68.2, 0)),  # 6
    Part.LineSegment(V(128.1, 68.2, 0), V(133.1, 71.1, 0)),  # 7
    Part.LineSegment(V(133.1, 71.1, 0), V(128.1, 79.8, 0)),  # 8
    Part.LineSegment(V(-9, 153.8, 0), V(-9, 146.2, 0)),  # 9
    Part.LineSegment(V(-9, 146.2, 0), V(-3, 146.2, 0)),  # 10
    Part.LineSegment(V(-3, 146.2, 0), V(-3, 153.8, 0)),  # 11
    Part.LineSegment(V(-3, 153.8, 0), V(-9, 153.8, 0)),  # 12
    Part.LineSegment(V(79.8, -128.1, 0), V(76.8, -123.1, 0)),  # 13
    Part.LineSegment(V(76.8, -123.1, 0), V(68.2, -128.1, 0)),  # 14
    Part.LineSegment(V(68.2, -128.1, 0), V(71.1, -133.1, 0)),  # 15
    Part.LineSegment(V(71.1, -133.1, 0), V(79.8, -128.1, 0)),  # 16
    Part.LineSegment(V(-71.1, -133.1, 0), V(-68.2, -128.1, 0)),  # 17
    Part.LineSegment(V(-68.2, -128.1, 0), V(-76.8, -123.1, 0)),  # 18
    Part.LineSegment(V(-76.8, -123.1, 0), V(-79.8, -128.1, 0)),  # 19
    Part.LineSegment(V(-79.8, -128.1, 0), V(-71.1, -133.1, 0)),  # 20
    Part.LineSegment(V(-133.1, 71.1, 0), V(-128.1, 68.2, 0)),  # 21
    Part.LineSegment(V(-128.1, 68.2, 0), V(-123.1, 76.8, 0)),  # 22
    Part.LineSegment(V(-123.1, 76.8, 0), V(-128.1, 79.8, 0)),  # 23
    Part.LineSegment(V(-128.1, 79.8, 0), V(-133.1, 71.1, 0)),  # 24
    Part.LineSegment(V(-79.8, 128.1, 0), V(-76.8, 123.1, 0)),  # 25
    Part.LineSegment(V(-76.8, 123.1, 0), V(-68.2, 128.1, 0)),  # 26
    Part.LineSegment(V(-68.2, 128.1, 0), V(-71.1, 133.1, 0)),  # 27
    Part.LineSegment(V(-71.1, 133.1, 0), V(-79.8, 128.1, 0)),  # 28
], False)
sketch13.addConstraint([
    Sketcher.Constraint("Coincident", 1, 2, 2, 1),
    Sketcher.Constraint("Coincident", 2, 2, 3, 1),
    Sketcher.Constraint("Coincident", 3, 2, 4, 1),
    Sketcher.Constraint("Coincident", 4, 2, 1, 1),
    Sketcher.Constraint("Coincident", 5, 2, 6, 1),
    Sketcher.Constraint("Coincident", 6, 2, 7, 1),
    Sketcher.Constraint("Coincident", 7, 2, 8, 1),
    Sketcher.Constraint("Coincident", 8, 2, 5, 1),
    Sketcher.Constraint("Coincident", 9, 2, 10, 1),
    Sketcher.Constraint("Coincident", 10, 2, 11, 1),
    Sketcher.Constraint("Coincident", 11, 2, 12, 1),
    Sketcher.Constraint("Coincident", 12, 2, 9, 1),
    Sketcher.Constraint("Coincident", 13, 2, 14, 1),
    Sketcher.Constraint("Coincident", 14, 2, 15, 1),
    Sketcher.Constraint("Coincident", 15, 2, 16, 1),
    Sketcher.Constraint("Coincident", 16, 2, 13, 1),
    Sketcher.Constraint("Coincident", 17, 2, 18, 1),
    Sketcher.Constraint("Coincident", 18, 2, 19, 1),
    Sketcher.Constraint("Coincident", 19, 2, 20, 1),
    Sketcher.Constraint("Coincident", 20, 2, 17, 1),
    Sketcher.Constraint("Coincident", 21, 2, 22, 1),
    Sketcher.Constraint("Coincident", 22, 2, 23, 1),
    Sketcher.Constraint("Coincident", 23, 2, 24, 1),
    Sketcher.Constraint("Coincident", 24, 2, 21, 1),
    Sketcher.Constraint("Coincident", 25, 2, 26, 1),
    Sketcher.Constraint("Coincident", 26, 2, 27, 1),
    Sketcher.Constraint("Coincident", 27, 2, 28, 1),
    Sketcher.Constraint("Coincident", 28, 2, 25, 1),
    Sketcher.Constraint("Vertical", 9),
    Sketcher.Constraint("Horizontal", 10),
    Sketcher.Constraint("Vertical", 11),
    Sketcher.Constraint("Horizontal", 12),
    Sketcher.Constraint("Symmetric", 1, 2, 17, 2, -1, 1),
    Sketcher.Constraint("Symmetric", 2, 2, 18, 2, -1, 1),
    Sketcher.Constraint("Symmetric", 3, 2, 19, 2, -1, 1),
    Sketcher.Constraint("Symmetric", 4, 2, 20, 2, -1, 1),
    Sketcher.Constraint("Symmetric", 13, 2, 25, 2, -1, 1),
    Sketcher.Constraint("Symmetric", 14, 2, 26, 2, -1, 1),
    Sketcher.Constraint("Symmetric", 15, 2, 27, 2, -1, 1),
    Sketcher.Constraint("Symmetric", 16, 2, 28, 2, -1, 1),
    Sketcher.Constraint("Symmetric", 14, 2, 17, 2, -2),
    Sketcher.Constraint("Symmetric", 13, 2, 18, 2, -2),
    Sketcher.Constraint("Symmetric", 16, 2, 19, 2, -2),
    Sketcher.Constraint("Symmetric", 15, 2, 20, 2, -2),
    Sketcher.Constraint("Symmetric", 6, 2, 21, 2, -2),
    Sketcher.Constraint("Symmetric", 5, 2, 22, 2, -2),
    Sketcher.Constraint("Symmetric", 8, 2, 23, 2, -2),
    Sketcher.Constraint("Symmetric", 7, 2, 24, 2, -2),
    Sketcher.Constraint("Perpendicular", 1, 2),
    Sketcher.Constraint("Perpendicular", 2, 3),
    Sketcher.Constraint("Perpendicular", 3, 4),
    Sketcher.Constraint("Perpendicular", 5, 6),
    Sketcher.Constraint("Perpendicular", 6, 7),
    Sketcher.Constraint("Perpendicular", 7, 8),
    Sketcher.Constraint("Parallel", 8, 13),
    Sketcher.Constraint("Equal", 3, 5),
    Sketcher.Constraint("Equal", 4, 6),
    Sketcher.Constraint("Diameter", 0, 5.0),
    Sketcher.Constraint("DistanceX", 10, 1, 10, 2, 6.0),
    Sketcher.Constraint("Angle", 1, Q("-120 deg")),
    Sketcher.Constraint("Distance", 2, 10.0),
    Sketcher.Constraint("DistanceY", 9, 2, 9, 1, 7.5),
    Sketcher.Constraint("DistanceX", -1, 1, 0, 3, 5.0),
    Sketcher.Constraint("DistanceY", -1, 1, 0, 3, 150.0),
    Sketcher.Constraint("DistanceX", 9, 2, -1, 1, 9.0),
    Sketcher.Constraint("DistanceX", 17, 2, 13, 2, 145.0),
    Sketcher.Constraint("Distance", 1, 5.85),
    Sketcher.Constraint("DistanceY", -1, 1, 9, 2, 146.25),
    Sketcher.Constraint("DistanceX", 1, 2, 5, 2, 54.903811),
    Sketcher.Constraint("DistanceY", 6, 2, 2, 2, 54.903811),
    Sketcher.Constraint("DistanceY", 13, 2, 5, 2, 199.903811),
])
pocket12 = doc.addObject("PartDesign::Pocket", "Pocket011")
body.addObject(pocket12)
pocket12.Profile = sketch13
pocket12.Length = 10

doc.recompute()
